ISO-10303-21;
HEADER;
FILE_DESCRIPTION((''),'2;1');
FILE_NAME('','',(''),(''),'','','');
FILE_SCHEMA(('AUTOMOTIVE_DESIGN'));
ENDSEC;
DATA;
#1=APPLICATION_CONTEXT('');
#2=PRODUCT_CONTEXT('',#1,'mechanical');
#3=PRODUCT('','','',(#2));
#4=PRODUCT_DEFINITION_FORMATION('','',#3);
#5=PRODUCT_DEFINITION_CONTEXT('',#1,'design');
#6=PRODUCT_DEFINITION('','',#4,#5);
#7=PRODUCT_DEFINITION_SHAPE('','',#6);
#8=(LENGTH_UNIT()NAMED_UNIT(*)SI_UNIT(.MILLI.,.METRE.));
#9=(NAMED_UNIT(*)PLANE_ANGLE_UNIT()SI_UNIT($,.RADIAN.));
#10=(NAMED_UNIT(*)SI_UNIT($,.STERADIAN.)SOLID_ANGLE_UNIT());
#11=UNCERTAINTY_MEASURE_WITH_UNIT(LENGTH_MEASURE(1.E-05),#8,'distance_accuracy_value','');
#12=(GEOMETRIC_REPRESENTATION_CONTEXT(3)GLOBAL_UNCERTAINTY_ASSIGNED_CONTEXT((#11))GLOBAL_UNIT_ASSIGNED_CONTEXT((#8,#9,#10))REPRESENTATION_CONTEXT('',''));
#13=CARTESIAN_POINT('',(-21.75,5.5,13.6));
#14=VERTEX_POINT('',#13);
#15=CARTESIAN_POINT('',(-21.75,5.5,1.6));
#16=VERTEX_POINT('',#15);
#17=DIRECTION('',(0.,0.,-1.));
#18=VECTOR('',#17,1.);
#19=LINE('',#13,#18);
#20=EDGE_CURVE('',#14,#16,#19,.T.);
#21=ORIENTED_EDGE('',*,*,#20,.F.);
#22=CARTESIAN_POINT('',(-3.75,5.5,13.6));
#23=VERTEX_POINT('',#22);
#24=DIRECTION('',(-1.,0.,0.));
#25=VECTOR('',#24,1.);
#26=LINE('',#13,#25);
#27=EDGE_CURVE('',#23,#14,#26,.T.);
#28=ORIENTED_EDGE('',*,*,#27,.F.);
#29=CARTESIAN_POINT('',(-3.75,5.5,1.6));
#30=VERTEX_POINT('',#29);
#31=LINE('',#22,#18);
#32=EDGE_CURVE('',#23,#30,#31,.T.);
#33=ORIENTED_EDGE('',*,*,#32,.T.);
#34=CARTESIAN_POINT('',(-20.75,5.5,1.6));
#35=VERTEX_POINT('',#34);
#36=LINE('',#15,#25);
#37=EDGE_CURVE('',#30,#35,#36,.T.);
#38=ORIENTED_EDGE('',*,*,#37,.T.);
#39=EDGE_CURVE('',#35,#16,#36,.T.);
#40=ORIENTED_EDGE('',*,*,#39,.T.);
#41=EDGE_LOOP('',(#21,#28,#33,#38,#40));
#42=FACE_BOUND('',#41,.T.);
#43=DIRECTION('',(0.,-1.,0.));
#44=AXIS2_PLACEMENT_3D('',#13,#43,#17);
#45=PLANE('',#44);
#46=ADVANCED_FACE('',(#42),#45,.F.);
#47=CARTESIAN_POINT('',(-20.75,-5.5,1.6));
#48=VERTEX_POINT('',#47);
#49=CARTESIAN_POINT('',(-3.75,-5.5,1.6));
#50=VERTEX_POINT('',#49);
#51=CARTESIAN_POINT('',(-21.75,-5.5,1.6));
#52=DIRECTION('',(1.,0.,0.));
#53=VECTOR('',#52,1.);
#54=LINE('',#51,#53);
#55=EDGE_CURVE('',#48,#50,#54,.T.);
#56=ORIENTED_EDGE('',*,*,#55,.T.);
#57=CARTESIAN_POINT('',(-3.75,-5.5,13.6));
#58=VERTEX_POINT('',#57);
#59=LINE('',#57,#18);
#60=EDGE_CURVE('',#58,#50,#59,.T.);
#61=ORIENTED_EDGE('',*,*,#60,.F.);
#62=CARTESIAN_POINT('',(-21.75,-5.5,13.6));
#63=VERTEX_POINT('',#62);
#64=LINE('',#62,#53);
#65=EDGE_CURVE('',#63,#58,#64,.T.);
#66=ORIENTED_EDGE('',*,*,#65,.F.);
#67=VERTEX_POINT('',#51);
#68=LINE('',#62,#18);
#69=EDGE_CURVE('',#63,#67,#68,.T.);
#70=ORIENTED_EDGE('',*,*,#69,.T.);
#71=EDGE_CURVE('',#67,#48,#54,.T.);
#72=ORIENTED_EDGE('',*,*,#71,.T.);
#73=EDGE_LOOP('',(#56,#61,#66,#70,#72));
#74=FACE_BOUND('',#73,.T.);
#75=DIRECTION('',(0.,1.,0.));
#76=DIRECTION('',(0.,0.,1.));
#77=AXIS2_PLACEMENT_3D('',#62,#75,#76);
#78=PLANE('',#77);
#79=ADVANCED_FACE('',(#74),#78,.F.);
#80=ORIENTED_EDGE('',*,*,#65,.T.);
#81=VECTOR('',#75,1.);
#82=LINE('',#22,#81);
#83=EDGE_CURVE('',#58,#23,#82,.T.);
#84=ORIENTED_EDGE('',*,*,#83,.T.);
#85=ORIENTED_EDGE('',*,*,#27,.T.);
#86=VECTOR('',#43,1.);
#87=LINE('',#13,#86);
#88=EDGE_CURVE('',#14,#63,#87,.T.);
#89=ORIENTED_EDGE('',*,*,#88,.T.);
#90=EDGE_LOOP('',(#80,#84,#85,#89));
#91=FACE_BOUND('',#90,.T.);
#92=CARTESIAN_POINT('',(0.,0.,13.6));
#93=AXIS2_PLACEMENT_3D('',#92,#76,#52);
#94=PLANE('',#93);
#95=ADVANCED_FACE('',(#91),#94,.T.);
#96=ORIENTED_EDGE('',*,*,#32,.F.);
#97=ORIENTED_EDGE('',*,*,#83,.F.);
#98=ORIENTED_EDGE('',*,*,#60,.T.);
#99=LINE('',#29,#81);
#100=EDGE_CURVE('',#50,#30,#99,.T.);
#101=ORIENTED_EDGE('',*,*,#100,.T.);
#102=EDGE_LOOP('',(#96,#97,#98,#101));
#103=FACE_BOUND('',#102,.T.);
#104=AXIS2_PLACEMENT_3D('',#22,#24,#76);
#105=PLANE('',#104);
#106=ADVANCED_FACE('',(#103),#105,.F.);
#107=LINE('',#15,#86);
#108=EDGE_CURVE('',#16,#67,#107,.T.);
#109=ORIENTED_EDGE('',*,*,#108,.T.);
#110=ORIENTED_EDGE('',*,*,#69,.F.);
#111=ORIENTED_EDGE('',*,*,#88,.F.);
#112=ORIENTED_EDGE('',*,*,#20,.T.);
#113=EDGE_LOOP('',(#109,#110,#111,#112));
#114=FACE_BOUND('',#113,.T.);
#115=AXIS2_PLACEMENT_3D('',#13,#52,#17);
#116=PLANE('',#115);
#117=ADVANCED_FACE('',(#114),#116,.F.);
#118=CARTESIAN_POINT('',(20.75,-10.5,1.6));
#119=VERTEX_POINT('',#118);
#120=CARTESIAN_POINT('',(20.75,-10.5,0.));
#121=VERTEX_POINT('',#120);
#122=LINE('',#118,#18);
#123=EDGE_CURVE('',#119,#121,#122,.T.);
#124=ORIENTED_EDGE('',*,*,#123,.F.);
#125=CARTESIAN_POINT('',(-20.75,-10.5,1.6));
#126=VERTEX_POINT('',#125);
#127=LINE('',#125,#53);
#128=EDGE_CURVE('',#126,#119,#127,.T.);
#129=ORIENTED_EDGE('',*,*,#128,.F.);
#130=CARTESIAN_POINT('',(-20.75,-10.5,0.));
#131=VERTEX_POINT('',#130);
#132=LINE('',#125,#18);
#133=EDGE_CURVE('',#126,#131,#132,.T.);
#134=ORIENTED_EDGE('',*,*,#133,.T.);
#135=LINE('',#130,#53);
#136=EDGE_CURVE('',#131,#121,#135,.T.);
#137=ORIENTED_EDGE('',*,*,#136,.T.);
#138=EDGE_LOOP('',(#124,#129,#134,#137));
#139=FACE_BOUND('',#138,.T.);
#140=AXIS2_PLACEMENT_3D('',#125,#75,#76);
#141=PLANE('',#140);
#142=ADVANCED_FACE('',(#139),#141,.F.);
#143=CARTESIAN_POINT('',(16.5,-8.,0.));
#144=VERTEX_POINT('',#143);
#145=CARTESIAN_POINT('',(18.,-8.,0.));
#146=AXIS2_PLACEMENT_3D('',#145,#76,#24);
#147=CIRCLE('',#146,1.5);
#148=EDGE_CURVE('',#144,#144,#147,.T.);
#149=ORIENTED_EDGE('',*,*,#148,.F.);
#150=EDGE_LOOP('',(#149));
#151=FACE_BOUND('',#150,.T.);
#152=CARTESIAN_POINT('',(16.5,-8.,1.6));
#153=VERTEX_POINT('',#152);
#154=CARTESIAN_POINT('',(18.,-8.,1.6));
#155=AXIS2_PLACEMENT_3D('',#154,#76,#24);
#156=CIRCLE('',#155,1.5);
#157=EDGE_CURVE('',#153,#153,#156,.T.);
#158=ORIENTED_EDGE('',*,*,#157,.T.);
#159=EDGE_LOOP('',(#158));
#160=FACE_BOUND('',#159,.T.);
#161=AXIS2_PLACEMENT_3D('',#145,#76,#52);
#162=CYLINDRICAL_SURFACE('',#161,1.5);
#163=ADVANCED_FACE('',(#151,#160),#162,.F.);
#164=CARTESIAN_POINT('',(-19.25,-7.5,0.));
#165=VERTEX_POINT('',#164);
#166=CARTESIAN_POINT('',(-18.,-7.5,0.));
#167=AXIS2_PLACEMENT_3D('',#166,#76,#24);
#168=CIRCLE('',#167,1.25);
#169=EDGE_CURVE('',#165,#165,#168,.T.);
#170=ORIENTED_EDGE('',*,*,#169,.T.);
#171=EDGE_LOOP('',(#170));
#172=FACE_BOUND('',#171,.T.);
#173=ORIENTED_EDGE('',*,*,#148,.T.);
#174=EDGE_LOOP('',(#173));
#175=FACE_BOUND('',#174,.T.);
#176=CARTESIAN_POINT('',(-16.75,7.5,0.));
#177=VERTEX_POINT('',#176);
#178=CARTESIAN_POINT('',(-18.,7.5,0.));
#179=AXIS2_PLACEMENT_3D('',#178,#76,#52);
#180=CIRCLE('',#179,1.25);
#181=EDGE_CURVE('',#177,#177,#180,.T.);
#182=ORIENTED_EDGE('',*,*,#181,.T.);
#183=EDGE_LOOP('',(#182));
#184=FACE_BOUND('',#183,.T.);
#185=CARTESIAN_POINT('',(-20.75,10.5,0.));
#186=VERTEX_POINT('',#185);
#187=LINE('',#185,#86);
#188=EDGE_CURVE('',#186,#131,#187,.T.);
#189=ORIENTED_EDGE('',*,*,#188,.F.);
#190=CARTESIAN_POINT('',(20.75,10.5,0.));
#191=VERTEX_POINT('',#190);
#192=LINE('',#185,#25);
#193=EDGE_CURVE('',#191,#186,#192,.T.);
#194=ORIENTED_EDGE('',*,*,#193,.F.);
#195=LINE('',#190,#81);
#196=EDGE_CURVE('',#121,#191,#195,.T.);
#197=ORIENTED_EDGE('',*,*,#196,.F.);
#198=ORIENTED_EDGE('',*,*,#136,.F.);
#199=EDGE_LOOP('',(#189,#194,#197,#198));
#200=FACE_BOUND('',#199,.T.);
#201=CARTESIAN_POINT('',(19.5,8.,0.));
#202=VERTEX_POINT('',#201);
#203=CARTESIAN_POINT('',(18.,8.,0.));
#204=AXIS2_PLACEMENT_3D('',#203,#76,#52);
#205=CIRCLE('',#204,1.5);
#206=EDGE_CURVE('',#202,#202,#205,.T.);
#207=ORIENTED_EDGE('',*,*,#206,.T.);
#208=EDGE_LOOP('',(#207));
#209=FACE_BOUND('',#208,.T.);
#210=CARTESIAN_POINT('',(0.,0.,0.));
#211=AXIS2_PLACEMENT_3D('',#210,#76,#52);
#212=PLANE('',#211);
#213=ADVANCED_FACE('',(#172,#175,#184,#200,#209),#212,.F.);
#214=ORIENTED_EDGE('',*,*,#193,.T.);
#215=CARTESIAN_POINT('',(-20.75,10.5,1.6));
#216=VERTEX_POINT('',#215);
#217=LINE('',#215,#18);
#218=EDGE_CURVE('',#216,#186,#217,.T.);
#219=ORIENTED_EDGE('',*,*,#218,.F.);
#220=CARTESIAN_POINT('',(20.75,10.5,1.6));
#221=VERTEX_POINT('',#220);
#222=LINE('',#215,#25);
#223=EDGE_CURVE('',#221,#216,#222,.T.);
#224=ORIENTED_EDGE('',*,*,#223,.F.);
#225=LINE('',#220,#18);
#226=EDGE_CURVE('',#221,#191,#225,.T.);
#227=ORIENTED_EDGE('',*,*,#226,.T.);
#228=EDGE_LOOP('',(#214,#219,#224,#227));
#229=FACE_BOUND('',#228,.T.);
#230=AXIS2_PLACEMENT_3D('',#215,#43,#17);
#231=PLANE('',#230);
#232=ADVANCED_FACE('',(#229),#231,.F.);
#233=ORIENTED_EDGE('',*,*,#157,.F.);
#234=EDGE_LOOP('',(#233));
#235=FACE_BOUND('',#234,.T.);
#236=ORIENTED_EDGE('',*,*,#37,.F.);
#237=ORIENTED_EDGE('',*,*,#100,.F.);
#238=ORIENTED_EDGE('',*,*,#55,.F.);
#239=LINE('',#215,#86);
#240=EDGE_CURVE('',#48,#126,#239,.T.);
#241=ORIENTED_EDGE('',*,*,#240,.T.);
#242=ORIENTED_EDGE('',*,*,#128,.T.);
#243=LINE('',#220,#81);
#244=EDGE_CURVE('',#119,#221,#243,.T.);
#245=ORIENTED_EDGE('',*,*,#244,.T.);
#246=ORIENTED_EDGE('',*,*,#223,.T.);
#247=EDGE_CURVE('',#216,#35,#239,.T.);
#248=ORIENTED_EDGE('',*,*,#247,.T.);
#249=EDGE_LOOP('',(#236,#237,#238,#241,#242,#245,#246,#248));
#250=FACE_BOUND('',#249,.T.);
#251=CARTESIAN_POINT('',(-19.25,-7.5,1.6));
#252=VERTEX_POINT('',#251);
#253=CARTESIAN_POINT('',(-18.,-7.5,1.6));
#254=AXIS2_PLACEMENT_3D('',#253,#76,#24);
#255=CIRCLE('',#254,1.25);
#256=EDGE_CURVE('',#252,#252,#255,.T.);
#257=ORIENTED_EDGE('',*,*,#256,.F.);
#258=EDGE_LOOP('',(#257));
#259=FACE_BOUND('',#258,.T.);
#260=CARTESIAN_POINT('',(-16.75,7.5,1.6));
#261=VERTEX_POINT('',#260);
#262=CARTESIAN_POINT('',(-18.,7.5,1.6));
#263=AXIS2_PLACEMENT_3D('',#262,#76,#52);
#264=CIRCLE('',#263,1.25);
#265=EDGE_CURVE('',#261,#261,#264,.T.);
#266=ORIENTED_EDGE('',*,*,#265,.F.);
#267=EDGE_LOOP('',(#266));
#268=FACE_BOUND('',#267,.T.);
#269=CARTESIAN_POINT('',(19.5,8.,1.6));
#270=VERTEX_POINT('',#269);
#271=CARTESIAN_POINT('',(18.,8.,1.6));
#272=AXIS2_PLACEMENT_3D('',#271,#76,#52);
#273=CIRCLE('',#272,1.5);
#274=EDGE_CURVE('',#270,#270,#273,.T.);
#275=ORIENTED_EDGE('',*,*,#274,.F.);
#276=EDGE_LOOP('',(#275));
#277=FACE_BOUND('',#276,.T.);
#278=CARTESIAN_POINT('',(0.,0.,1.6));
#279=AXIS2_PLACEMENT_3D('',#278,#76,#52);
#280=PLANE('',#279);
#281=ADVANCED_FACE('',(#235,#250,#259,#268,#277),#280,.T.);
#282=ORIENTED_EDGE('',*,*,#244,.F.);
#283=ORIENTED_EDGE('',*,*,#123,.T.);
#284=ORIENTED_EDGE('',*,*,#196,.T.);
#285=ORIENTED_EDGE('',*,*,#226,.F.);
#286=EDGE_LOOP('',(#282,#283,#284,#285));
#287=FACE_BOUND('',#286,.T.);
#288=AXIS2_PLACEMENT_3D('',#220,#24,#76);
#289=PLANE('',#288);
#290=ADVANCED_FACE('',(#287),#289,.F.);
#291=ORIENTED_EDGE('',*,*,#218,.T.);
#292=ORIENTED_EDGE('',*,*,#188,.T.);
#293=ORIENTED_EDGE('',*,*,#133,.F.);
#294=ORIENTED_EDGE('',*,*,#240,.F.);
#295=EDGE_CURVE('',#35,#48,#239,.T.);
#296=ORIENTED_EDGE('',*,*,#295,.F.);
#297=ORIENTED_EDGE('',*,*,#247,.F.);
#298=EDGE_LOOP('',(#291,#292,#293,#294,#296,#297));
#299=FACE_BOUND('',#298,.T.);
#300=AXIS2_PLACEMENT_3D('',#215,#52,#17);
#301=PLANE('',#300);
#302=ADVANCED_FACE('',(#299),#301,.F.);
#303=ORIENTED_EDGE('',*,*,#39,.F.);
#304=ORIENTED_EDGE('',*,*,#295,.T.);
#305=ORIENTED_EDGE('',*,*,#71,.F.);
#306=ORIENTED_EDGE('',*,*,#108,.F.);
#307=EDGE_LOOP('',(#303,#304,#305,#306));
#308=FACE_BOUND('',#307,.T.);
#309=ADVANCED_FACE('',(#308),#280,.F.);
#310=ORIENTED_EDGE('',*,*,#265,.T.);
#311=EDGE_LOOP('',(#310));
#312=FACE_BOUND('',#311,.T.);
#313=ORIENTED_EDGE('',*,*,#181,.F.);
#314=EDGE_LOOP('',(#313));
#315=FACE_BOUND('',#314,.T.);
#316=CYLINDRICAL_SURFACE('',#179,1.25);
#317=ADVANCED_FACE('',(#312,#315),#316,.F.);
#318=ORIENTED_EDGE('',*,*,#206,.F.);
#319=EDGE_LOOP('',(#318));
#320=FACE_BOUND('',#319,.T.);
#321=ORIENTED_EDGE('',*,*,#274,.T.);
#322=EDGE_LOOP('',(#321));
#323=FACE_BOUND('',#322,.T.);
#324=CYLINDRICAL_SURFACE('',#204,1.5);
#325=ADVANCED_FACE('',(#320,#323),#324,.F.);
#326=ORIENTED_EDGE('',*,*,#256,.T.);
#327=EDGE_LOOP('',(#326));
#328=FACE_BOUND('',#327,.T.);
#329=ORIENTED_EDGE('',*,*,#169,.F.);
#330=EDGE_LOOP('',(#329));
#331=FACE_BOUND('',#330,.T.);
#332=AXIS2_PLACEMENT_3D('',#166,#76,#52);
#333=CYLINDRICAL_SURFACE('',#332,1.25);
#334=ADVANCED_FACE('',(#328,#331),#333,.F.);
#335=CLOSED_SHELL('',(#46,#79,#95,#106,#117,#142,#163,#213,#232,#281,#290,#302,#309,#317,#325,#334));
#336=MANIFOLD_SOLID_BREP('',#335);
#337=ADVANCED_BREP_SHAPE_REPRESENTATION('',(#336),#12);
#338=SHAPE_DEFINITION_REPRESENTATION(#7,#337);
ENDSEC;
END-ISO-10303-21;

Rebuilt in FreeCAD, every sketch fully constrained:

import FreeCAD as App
import Part
import Sketcher
Q = App.Units.Quantity

doc = App.newDocument("Part")
body = doc.addObject("PartDesign::Body", "Body")

# Sketch on XY plane
sketch1 = doc.addObject("Sketcher::SketchObject", "Sketch")
body.addObject(sketch1)
sketch1.AttachmentSupport = (doc.XY_Plane, [""])
sketch1.MapMode = "FlatFace"
sketch1.addGeometry([
    Part.LineSegment(App.Vector(-21, 10, 0), App.Vector(-21, -10, 0)),
    Part.LineSegment(App.Vector(-21, -10, 0), App.Vector(21, -10, 0)),
    Part.LineSegment(App.Vector(21, -10, 0), App.Vector(21, 10, 0)),
    Part.LineSegment(App.Vector(21, 10, 0), App.Vector(-21, 10, 0)),
], False)
sketch1.addConstraint([
    Sketcher.Constraint("Coincident", 0, 2, 1, 1),
    Sketcher.Constraint("Coincident", 1, 2, 2, 1),
    Sketcher.Constraint("Coincident", 2, 2, 3, 1),
    Sketcher.Constraint("Coincident", 3, 2, 0, 1),
    Sketcher.Constraint("Vertical", 0),
    Sketcher.Constraint("Horizontal", 1),
    Sketcher.Constraint("Vertical", 2),
    Sketcher.Constraint("Horizontal", 3),
    Sketcher.Constraint("Symmetric", 0, 2, 2, 2, -1, 1),
    Sketcher.Constraint("DistanceY", 0, 2, 0, 1, Q("21 mm")),
    Sketcher.Constraint("DistanceX", 1, 1, 1, 2, Q("41.5 mm")),
])
pad1 = doc.addObject("PartDesign::Pad", "Pad")
body.addObject(pad1)
pad1.Profile = sketch1
pad1.Length = 1.6

# Sketch on XY plane
sketch2 = doc.addObject("Sketcher::SketchObject", "Sketch001")
body.addObject(sketch2)
sketch2.AttachmentSupport = (doc.XY_Plane, [""])
sketch2.MapMode = "FlatFace"
sketch2.AttachmentOffset = App.Placement(App.Vector(0, 0, 1.6), App.Rotation())
sketch2.addGeometry([
    Part.LineSegment(App.Vector(-22, 6, 0), App.Vector(-22, -6, 0)),
    Part.LineSegment(App.Vector(-22, -6, 0), App.Vector(-4, -6, 0)),
    Part.LineSegment(App.Vector(-4, -6, 0), App.Vector(-4, 6, 0)),
    Part.LineSegment(App.Vector(-4, 6, 0), App.Vector(-22, 6, 0)),
], False)
sketch2.addConstraint([
    Sketcher.Constraint("Coincident", 0, 2, 1, 1),
    Sketcher.Constraint("Coincident", 1, 2, 2, 1),
    Sketcher.Constraint("Coincident", 2, 2, 3, 1),
    Sketcher.Constraint("Coincident", 3, 2, 0, 1),
    Sketcher.Constraint("Vertical", 0),
    Sketcher.Constraint("Horizontal", 1),
    Sketcher.Constraint("Vertical", 2),
    Sketcher.Constraint("Horizontal", 3),
    Sketcher.Constraint("DistanceX", 1, 1, 1, 2, Q("18 mm")),
    Sketcher.Constraint("DistanceY", 0, 2, 0, 1, Q("11 mm")),
    Sketcher.Constraint("DistanceY", 0, 2, -1, 1, Q("5.5 mm")),
    Sketcher.Constraint("DistanceX", 0, 2, -1, 1, Q("21.75 mm")),
])
pad2 = doc.addObject("PartDesign::Pad", "Pad001")
body.addObject(pad2)
pad2.Profile = sketch2
pad2.Length = 12

# Sketch on XY plane
sketch3 = doc.addObject("Sketcher::SketchObject", "Sketch002")
body.addObject(sketch3)
sketch3.AttachmentSupport = (doc.XY_Plane, [""])
sketch3.MapMode = "FlatFace"
sketch3.AttachmentOffset = App.Placement(App.Vector(0, 0, 1.6), App.Rotation())
sketch3.addGeometry([
    Part.Circle(App.Vector(-18, 7.5, 0), App.Vector(0, 0, 1), 1.2),
    Part.Circle(App.Vector(18, 8, 0), App.Vector(0, 0, 1), 1.5),
    Part.Circle(App.Vector(18, -8, 0), App.Vector(0, 0, 1), 1.5),
    Part.Circle(App.Vector(-18, -7.5, 0), App.Vector(0, 0, 1), 1.2),
], False)
sketch3.addConstraint([
    Sketcher.Constraint("Equal", 1, 2),
    Sketcher.Constraint("Equal", 0, 3),
    Sketcher.Constraint("Symmetric", 1, 3, 2, 3, -1),
    Sketcher.Constraint("Symmetric", 0, 3, 3, 3, -1),
    Sketcher.Constraint("Diameter", 1, Q("3 mm")),
    Sketcher.Constraint("Diameter", 0, Q("2.5 mm")),
    Sketcher.Constraint("DistanceX", 0, 3, -1, 1, Q("18 mm")),
    Sketcher.Constraint("DistanceX", -1, 1, 1, 3, Q("18 mm")),
    Sketcher.Constraint("DistanceY", -1, 1, 1, 3, Q("8 mm")),
    Sketcher.Constraint("DistanceY", 3, 3, 0, 3, Q("15 mm")),
])
pocket1 = doc.addObject("PartDesign::Pocket", "Pocket")
body.addObject(pocket1)
pocket1.Profile = sketch3
pocket1.Type = "ThroughAll"

doc.recompute()
